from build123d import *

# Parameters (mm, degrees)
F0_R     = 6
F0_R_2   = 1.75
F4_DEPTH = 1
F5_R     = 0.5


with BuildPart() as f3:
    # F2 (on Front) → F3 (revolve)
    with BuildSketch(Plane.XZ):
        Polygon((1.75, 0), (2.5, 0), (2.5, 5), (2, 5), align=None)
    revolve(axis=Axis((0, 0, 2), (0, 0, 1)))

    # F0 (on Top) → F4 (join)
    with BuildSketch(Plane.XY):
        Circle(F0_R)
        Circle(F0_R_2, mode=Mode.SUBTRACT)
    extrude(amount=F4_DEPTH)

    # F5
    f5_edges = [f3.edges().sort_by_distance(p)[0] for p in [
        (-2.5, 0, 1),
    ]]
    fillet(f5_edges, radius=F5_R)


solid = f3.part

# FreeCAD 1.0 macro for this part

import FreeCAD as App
import Part
import Sketcher
from FreeCAD import Vector


def edges_at(feature, points):
    """Names of the edges that pass closest to the given points."""
    edges = feature.Shape.Edges
    near = lambda p: min(range(len(edges)), key=lambda i: edges[i].distToShape(Part.Vertex(*p))[0])
    return sorted({f"Edge{near(p) + 1}" for p in points})

doc = App.newDocument("Part")
body = doc.addObject("PartDesign::Body", "Body")

sketch1 = doc.addObject("Sketcher::SketchObject", "Sketch")
body.addObject(sketch1)
sketch1.AttachmentSupport = (doc.XZ_Plane, [""])
sketch1.MapMode = "FlatFace"
sketch1.addGeometry([
    Part.LineSegment(Vector(1.8, 0, 0), Vector(2.5, 0, 0)),
    Part.LineSegment(Vector(2.5, 0, 0), Vector(2.5, 5, 0)),
    Part.LineSegment(Vector(2.5, 5, 0), Vector(2, 5, 0)),
    Part.LineSegment(Vector(2, 5, 0), Vector(1.8, 0, 0)),
], False)
sketch1.addConstraint([
    Sketcher.Constraint("Coincident", 0, 2, 1, 1),
    Sketcher.Constraint("Coincident", 1, 2, 2, 1),
    Sketcher.Constraint("Coincident", 2, 2, 3, 1),
    Sketcher.Constraint("Coincident", 3, 2, 0, 1),
    Sketcher.Constraint("Horizontal", 0),
    Sketcher.Constraint("Vertical", 1),
    Sketcher.Constraint("Horizontal", 2),
    Sketcher.Constraint("PointOnObject", 0, 2, -1),
    Sketcher.Constraint("DistanceY", 1, 1, 1, 2, 5.0),
    Sketcher.Constraint("DistanceX", 2, 2, 2, 1, 0.5),
    Sketcher.Constraint("DistanceX", -1, 1, 2, 2, 2.0),
    Sketcher.Constraint("DistanceX", 0, 1, 0, 2, 0.75),
])
revolution = doc.addObject("PartDesign::Revolution", "Revolution")
body.addObject(revolution)
revolution.Profile = sketch1
revolution.ReferenceAxis = (sketch1, ["V_Axis"])
revolution.Angle = 360

sketch2 = doc.addObject("Sketcher::SketchObject", "Sketch001")
body.addObject(sketch2)
sketch2.AttachmentSupport = (doc.XY_Plane, [""])
sketch2.MapMode = "FlatFace"
sketch2.addGeometry([
    Part.Circle(Vector(0, 0, 0), Vector(0, 0, 1), 6),
    Part.Circle(Vector(0, 0, 0), Vector(0, 0, 1), 1.8),
], False)
sketch2.addConstraint([
    Sketcher.Constraint("Coincident", 0, 3, -1, 1),
    Sketcher.Constraint("Coincident", 1, 3, -1, 1),
    Sketcher.Constraint("Diameter", 0, 12.0),
    Sketcher.Constraint("Diameter", 1, 3.5),
])
pad1 = doc.addObject("PartDesign::Pad", "Pad")
body.addObject(pad1)
pad1.Profile = sketch2
pad1.Length = 1
doc.recompute()

fillet = doc.addObject("PartDesign::Fillet", "Fillet")
body.addObject(fillet)
fillet.Base = (pad1, edges_at(pad1, [(-2.5, 0, 1)]))
fillet.Radius = 0.5

doc.recompute()
